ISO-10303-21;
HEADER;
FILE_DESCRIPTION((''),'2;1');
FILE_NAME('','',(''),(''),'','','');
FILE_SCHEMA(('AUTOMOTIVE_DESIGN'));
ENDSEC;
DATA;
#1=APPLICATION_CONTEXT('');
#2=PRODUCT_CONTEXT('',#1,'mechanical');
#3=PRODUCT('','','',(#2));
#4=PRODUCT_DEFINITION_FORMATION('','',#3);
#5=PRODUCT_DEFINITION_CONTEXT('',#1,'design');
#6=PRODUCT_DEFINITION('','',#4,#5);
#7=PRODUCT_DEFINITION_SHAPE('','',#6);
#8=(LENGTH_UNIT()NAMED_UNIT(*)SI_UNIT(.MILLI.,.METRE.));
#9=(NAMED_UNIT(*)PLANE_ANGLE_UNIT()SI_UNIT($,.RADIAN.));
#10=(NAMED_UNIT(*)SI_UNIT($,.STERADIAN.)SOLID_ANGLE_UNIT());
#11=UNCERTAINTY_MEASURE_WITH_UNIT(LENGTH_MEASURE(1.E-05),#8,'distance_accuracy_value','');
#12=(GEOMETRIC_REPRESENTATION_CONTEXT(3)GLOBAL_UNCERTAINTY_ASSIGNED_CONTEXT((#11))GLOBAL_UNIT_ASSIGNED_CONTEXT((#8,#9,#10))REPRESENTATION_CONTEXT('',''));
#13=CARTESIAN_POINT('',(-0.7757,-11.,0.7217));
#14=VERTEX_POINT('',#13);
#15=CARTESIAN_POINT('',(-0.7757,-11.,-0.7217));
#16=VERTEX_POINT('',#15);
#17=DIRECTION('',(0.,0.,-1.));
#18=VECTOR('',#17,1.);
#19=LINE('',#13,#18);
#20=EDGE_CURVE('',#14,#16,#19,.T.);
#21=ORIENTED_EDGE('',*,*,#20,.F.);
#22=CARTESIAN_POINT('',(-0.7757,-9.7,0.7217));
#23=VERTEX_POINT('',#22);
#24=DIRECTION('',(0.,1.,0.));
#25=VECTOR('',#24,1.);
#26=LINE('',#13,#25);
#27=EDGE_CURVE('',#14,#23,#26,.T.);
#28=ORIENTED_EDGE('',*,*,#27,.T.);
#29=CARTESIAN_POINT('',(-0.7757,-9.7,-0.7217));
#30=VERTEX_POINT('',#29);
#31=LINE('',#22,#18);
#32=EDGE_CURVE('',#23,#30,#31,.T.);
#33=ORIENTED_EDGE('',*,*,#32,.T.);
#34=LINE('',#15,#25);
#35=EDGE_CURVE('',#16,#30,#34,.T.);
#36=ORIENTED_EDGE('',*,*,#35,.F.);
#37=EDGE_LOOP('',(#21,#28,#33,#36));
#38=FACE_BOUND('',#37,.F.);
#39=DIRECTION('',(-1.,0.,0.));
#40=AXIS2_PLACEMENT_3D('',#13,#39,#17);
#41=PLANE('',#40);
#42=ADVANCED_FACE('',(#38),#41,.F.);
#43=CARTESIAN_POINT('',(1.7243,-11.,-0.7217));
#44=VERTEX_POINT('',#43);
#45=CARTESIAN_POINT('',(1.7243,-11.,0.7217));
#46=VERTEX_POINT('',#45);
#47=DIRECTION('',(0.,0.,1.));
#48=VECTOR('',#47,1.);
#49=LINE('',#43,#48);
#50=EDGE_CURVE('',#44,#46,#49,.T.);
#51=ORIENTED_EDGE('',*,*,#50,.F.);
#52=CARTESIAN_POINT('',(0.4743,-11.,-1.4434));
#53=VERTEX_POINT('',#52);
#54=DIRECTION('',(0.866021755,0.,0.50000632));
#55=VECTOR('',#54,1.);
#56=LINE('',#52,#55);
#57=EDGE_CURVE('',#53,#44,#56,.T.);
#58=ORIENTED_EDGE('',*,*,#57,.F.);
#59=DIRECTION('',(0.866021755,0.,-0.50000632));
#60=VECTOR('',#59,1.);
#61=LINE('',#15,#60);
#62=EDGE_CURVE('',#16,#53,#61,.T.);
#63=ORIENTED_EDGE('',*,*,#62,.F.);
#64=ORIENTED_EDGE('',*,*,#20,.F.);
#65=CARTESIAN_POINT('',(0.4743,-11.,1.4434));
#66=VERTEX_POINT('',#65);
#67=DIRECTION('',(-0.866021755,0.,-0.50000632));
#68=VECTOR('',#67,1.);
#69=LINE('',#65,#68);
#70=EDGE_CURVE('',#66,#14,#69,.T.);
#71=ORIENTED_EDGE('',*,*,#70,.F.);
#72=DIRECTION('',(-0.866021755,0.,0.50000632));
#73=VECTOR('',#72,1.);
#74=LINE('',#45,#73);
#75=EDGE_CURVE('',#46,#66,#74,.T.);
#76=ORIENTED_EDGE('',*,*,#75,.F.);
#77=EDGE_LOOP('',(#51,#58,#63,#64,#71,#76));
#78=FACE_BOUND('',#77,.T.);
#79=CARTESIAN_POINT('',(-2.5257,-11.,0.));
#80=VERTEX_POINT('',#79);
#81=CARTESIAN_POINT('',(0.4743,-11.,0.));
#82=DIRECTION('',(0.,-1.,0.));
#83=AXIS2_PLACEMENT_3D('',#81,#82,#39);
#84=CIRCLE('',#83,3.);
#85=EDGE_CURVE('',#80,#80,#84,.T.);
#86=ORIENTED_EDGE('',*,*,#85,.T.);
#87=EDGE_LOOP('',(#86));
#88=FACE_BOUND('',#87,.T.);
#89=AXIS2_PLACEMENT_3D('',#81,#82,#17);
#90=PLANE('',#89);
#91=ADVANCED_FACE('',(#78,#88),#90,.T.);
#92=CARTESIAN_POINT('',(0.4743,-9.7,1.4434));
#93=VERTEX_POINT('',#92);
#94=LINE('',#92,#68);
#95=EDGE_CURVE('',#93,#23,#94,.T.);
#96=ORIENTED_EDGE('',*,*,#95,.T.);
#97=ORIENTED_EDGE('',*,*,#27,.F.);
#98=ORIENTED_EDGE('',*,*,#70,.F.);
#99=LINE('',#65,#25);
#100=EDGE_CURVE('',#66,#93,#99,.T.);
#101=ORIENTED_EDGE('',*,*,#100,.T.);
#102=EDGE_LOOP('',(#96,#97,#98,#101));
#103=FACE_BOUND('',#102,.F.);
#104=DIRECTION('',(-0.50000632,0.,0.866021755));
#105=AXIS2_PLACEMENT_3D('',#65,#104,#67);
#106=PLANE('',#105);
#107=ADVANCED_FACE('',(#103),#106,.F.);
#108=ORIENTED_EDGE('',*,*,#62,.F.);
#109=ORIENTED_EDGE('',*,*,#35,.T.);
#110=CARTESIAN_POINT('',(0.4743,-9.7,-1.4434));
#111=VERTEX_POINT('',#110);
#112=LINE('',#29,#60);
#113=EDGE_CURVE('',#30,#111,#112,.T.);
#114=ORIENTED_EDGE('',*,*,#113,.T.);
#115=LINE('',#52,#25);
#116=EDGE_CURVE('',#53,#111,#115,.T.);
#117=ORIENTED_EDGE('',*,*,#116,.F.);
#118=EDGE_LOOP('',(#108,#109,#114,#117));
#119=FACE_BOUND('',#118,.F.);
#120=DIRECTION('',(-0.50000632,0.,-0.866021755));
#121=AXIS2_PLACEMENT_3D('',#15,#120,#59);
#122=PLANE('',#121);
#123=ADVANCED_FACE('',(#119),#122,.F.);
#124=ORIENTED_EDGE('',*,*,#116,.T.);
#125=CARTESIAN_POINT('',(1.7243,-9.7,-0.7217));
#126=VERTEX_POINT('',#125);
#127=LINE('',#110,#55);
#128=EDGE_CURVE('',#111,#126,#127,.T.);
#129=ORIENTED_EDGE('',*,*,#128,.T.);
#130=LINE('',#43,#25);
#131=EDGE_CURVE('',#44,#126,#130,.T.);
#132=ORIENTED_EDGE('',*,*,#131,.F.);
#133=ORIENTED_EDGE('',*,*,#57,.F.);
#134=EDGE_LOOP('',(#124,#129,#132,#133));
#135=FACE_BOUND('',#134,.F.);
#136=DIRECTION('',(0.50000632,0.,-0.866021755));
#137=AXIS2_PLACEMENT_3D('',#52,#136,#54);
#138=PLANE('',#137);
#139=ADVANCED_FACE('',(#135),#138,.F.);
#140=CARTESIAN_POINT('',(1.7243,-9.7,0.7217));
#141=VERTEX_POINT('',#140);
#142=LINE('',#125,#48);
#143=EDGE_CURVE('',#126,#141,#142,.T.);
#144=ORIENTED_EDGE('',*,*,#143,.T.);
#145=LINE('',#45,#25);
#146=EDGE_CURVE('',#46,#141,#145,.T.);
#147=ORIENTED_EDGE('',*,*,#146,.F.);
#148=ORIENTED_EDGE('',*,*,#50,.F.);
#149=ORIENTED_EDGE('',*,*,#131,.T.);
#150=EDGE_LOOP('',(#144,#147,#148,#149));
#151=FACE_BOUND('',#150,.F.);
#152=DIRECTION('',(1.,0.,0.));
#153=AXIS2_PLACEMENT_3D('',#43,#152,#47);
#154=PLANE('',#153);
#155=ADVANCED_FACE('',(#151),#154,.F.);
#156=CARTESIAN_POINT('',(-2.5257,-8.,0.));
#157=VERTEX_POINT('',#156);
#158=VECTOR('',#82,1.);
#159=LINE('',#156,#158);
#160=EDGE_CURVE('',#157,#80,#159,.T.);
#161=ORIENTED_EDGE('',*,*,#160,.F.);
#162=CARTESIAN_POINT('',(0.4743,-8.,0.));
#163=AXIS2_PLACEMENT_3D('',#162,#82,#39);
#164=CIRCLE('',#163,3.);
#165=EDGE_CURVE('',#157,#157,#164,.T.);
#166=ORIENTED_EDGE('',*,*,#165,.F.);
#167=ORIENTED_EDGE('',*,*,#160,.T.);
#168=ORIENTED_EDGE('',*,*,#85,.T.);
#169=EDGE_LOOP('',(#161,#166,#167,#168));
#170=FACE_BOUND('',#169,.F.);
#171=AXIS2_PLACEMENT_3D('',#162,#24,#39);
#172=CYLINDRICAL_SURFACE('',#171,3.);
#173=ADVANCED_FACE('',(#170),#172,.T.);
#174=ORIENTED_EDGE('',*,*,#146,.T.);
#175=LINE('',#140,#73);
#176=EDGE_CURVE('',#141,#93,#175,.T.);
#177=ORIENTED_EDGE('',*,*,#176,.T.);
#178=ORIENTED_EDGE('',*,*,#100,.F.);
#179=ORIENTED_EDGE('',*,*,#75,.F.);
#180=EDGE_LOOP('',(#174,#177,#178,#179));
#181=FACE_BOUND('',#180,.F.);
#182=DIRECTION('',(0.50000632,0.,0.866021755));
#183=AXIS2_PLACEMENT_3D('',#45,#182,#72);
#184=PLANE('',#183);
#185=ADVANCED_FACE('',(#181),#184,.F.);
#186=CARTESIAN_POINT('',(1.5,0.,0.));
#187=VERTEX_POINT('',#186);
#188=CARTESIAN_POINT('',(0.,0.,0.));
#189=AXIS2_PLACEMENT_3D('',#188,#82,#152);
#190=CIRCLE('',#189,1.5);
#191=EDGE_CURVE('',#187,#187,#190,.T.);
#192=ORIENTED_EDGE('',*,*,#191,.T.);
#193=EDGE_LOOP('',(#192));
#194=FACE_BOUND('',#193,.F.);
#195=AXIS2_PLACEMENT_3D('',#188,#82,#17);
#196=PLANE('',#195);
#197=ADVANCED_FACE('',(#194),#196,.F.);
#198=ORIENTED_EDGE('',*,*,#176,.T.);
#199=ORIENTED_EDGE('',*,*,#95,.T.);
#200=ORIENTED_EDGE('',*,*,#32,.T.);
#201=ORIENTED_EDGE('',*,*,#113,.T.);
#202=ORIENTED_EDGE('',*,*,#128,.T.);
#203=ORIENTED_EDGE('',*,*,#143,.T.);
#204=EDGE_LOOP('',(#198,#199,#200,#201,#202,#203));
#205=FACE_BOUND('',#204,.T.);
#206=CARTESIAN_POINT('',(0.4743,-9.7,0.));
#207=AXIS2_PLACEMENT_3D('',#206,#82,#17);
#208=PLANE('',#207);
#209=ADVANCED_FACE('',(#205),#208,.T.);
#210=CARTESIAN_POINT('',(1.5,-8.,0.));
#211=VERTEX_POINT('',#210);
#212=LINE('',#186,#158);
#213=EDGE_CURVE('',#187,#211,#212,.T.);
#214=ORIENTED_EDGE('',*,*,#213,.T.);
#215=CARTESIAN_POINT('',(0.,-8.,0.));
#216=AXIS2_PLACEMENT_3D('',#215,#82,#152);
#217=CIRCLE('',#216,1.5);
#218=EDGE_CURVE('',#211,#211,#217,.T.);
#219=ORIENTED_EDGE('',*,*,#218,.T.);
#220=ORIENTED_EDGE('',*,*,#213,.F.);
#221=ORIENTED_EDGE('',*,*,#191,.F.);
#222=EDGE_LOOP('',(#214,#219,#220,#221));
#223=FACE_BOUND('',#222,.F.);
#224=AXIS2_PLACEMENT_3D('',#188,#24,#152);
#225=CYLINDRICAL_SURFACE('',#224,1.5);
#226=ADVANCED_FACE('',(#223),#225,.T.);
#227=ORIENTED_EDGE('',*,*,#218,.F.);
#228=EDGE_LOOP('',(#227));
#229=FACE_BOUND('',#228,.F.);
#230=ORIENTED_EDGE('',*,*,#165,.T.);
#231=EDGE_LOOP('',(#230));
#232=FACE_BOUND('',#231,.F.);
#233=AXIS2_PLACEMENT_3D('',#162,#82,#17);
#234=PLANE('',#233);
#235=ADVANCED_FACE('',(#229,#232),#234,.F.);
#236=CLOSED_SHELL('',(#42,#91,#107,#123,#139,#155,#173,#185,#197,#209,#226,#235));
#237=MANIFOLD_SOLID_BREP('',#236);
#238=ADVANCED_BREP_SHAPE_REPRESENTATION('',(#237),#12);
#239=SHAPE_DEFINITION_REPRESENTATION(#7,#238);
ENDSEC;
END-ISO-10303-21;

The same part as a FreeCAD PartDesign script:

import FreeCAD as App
import Part
import Sketcher
from FreeCAD import Vector
Q = App.Units.Quantity

doc = App.newDocument("Part")
body = doc.addObject("PartDesign::Body", "Body")

# Sketch on XZ plane
sketch1 = body.newObject("Sketcher::SketchObject", "Sketch")
sketch1.AttachmentSupport = (doc.getObject("XZ_Plane"), [""])
sketch1.MapMode = "FlatFace"
sketch1.addGeometry(Part.Circle(Vector(0, 0, 0), Vector(0, 0, 1), 1.5), False)
sketch1.addConstraint([
    Sketcher.Constraint("Coincident", 0, 3, -1, 1),
    Sketcher.Constraint("Diameter", 0, Q("3 mm")),
])
pad1 = body.newObject("PartDesign::Pad", "Pad")
pad1.Profile = sketch1
pad1.Length = 8

# Sketch on XZ plane
sketch2 = body.newObject("Sketcher::SketchObject", "Sketch001")
sketch2.AttachmentSupport = (doc.getObject("XZ_Plane"), [""])
sketch2.MapMode = "FlatFace"
sketch2.AttachmentOffset = App.Placement(Vector(0, 0, 8), App.Rotation())
sketch2.addGeometry(Part.Circle(Vector(0.5, 0, 0), Vector(0, 0, 1), 3), False)
sketch2.addConstraint([
    Sketcher.Constraint("PointOnObject", 0, 3, -1),
    Sketcher.Constraint("Diameter", 0, Q("6 mm")),
    Sketcher.Constraint("DistanceX", -1, 1, 0, 3, Q("0.4743 mm")),
])
pad2 = body.newObject("PartDesign::Pad", "Pad001")
pad2.Profile = sketch2
pad2.Length = 3

# Sketch on XZ plane
sketch3 = body.newObject("Sketcher::SketchObject", "Sketch002")
sketch3.AttachmentSupport = (doc.getObject("XZ_Plane"), [""])
sketch3.MapMode = "FlatFace"
sketch3.AttachmentOffset = App.Placement(Vector(0, 0, 11), App.Rotation())
sketch3.addGeometry([
    Part.LineSegment(Vector(0.5, -1.4, 0), Vector(1.7, -0.7, 0)),  # 0
    Part.LineSegment(Vector(1.7, -0.7, 0), Vector(1.7, 0.7, 0)),  # 1
    Part.LineSegment(Vector(1.7, 0.7, 0), Vector(0.5, 1.4, 0)),  # 2
    Part.LineSegment(Vector(0.5, 1.4, 0), Vector(-0.8, 0.7, 0)),  # 3
    Part.LineSegment(Vector(-0.8, 0.7, 0), Vector(-0.8, -0.7, 0)),  # 4
    Part.LineSegment(Vector(-0.8, -0.7, 0), Vector(0.5, -1.4, 0)),  # 5
], False)
sketch3.addConstraint([
    Sketcher.Constraint("Coincident", 0, 2, 1, 1),
    Sketcher.Constraint("Coincident", 1, 2, 2, 1),
    Sketcher.Constraint("Coincident", 2, 2, 3, 1),
    Sketcher.Constraint("Coincident", 3, 2, 4, 1),
    Sketcher.Constraint("Coincident", 4, 2, 5, 1),
    Sketcher.Constraint("Coincident", 5, 2, 0, 1),
    Sketcher.Constraint("Vertical", 1),
    Sketcher.Constraint("Vertical", 4),
    Sketcher.Constraint("Symmetric", 2, 2, 5, 2, -1),
    Sketcher.Constraint("Parallel", 0, 3),
    Sketcher.Constraint("Parallel", 2, 5),
    Sketcher.Constraint("Horizontal", 1, 2, 3, 2),
    Sketcher.Constraint("Horizontal", 0, 2, 4, 2),
    Sketcher.Constraint("Angle", 0, Q("30.0004 deg")),
    Sketcher.Constraint("DistanceX", 3, 2, 1, 2, Q("2.5 mm")),
    Sketcher.Constraint("DistanceY", 1, 1, 1, 2, Q("1.4434 mm")),
    Sketcher.Constraint("DistanceX", -1, 1, 0, 2, Q("1.7243 mm")),
])
pocket1 = body.newObject("PartDesign::Pocket", "Pocket")
pocket1.Profile = sketch3
pocket1.Length = 1.3

doc.recompute()
